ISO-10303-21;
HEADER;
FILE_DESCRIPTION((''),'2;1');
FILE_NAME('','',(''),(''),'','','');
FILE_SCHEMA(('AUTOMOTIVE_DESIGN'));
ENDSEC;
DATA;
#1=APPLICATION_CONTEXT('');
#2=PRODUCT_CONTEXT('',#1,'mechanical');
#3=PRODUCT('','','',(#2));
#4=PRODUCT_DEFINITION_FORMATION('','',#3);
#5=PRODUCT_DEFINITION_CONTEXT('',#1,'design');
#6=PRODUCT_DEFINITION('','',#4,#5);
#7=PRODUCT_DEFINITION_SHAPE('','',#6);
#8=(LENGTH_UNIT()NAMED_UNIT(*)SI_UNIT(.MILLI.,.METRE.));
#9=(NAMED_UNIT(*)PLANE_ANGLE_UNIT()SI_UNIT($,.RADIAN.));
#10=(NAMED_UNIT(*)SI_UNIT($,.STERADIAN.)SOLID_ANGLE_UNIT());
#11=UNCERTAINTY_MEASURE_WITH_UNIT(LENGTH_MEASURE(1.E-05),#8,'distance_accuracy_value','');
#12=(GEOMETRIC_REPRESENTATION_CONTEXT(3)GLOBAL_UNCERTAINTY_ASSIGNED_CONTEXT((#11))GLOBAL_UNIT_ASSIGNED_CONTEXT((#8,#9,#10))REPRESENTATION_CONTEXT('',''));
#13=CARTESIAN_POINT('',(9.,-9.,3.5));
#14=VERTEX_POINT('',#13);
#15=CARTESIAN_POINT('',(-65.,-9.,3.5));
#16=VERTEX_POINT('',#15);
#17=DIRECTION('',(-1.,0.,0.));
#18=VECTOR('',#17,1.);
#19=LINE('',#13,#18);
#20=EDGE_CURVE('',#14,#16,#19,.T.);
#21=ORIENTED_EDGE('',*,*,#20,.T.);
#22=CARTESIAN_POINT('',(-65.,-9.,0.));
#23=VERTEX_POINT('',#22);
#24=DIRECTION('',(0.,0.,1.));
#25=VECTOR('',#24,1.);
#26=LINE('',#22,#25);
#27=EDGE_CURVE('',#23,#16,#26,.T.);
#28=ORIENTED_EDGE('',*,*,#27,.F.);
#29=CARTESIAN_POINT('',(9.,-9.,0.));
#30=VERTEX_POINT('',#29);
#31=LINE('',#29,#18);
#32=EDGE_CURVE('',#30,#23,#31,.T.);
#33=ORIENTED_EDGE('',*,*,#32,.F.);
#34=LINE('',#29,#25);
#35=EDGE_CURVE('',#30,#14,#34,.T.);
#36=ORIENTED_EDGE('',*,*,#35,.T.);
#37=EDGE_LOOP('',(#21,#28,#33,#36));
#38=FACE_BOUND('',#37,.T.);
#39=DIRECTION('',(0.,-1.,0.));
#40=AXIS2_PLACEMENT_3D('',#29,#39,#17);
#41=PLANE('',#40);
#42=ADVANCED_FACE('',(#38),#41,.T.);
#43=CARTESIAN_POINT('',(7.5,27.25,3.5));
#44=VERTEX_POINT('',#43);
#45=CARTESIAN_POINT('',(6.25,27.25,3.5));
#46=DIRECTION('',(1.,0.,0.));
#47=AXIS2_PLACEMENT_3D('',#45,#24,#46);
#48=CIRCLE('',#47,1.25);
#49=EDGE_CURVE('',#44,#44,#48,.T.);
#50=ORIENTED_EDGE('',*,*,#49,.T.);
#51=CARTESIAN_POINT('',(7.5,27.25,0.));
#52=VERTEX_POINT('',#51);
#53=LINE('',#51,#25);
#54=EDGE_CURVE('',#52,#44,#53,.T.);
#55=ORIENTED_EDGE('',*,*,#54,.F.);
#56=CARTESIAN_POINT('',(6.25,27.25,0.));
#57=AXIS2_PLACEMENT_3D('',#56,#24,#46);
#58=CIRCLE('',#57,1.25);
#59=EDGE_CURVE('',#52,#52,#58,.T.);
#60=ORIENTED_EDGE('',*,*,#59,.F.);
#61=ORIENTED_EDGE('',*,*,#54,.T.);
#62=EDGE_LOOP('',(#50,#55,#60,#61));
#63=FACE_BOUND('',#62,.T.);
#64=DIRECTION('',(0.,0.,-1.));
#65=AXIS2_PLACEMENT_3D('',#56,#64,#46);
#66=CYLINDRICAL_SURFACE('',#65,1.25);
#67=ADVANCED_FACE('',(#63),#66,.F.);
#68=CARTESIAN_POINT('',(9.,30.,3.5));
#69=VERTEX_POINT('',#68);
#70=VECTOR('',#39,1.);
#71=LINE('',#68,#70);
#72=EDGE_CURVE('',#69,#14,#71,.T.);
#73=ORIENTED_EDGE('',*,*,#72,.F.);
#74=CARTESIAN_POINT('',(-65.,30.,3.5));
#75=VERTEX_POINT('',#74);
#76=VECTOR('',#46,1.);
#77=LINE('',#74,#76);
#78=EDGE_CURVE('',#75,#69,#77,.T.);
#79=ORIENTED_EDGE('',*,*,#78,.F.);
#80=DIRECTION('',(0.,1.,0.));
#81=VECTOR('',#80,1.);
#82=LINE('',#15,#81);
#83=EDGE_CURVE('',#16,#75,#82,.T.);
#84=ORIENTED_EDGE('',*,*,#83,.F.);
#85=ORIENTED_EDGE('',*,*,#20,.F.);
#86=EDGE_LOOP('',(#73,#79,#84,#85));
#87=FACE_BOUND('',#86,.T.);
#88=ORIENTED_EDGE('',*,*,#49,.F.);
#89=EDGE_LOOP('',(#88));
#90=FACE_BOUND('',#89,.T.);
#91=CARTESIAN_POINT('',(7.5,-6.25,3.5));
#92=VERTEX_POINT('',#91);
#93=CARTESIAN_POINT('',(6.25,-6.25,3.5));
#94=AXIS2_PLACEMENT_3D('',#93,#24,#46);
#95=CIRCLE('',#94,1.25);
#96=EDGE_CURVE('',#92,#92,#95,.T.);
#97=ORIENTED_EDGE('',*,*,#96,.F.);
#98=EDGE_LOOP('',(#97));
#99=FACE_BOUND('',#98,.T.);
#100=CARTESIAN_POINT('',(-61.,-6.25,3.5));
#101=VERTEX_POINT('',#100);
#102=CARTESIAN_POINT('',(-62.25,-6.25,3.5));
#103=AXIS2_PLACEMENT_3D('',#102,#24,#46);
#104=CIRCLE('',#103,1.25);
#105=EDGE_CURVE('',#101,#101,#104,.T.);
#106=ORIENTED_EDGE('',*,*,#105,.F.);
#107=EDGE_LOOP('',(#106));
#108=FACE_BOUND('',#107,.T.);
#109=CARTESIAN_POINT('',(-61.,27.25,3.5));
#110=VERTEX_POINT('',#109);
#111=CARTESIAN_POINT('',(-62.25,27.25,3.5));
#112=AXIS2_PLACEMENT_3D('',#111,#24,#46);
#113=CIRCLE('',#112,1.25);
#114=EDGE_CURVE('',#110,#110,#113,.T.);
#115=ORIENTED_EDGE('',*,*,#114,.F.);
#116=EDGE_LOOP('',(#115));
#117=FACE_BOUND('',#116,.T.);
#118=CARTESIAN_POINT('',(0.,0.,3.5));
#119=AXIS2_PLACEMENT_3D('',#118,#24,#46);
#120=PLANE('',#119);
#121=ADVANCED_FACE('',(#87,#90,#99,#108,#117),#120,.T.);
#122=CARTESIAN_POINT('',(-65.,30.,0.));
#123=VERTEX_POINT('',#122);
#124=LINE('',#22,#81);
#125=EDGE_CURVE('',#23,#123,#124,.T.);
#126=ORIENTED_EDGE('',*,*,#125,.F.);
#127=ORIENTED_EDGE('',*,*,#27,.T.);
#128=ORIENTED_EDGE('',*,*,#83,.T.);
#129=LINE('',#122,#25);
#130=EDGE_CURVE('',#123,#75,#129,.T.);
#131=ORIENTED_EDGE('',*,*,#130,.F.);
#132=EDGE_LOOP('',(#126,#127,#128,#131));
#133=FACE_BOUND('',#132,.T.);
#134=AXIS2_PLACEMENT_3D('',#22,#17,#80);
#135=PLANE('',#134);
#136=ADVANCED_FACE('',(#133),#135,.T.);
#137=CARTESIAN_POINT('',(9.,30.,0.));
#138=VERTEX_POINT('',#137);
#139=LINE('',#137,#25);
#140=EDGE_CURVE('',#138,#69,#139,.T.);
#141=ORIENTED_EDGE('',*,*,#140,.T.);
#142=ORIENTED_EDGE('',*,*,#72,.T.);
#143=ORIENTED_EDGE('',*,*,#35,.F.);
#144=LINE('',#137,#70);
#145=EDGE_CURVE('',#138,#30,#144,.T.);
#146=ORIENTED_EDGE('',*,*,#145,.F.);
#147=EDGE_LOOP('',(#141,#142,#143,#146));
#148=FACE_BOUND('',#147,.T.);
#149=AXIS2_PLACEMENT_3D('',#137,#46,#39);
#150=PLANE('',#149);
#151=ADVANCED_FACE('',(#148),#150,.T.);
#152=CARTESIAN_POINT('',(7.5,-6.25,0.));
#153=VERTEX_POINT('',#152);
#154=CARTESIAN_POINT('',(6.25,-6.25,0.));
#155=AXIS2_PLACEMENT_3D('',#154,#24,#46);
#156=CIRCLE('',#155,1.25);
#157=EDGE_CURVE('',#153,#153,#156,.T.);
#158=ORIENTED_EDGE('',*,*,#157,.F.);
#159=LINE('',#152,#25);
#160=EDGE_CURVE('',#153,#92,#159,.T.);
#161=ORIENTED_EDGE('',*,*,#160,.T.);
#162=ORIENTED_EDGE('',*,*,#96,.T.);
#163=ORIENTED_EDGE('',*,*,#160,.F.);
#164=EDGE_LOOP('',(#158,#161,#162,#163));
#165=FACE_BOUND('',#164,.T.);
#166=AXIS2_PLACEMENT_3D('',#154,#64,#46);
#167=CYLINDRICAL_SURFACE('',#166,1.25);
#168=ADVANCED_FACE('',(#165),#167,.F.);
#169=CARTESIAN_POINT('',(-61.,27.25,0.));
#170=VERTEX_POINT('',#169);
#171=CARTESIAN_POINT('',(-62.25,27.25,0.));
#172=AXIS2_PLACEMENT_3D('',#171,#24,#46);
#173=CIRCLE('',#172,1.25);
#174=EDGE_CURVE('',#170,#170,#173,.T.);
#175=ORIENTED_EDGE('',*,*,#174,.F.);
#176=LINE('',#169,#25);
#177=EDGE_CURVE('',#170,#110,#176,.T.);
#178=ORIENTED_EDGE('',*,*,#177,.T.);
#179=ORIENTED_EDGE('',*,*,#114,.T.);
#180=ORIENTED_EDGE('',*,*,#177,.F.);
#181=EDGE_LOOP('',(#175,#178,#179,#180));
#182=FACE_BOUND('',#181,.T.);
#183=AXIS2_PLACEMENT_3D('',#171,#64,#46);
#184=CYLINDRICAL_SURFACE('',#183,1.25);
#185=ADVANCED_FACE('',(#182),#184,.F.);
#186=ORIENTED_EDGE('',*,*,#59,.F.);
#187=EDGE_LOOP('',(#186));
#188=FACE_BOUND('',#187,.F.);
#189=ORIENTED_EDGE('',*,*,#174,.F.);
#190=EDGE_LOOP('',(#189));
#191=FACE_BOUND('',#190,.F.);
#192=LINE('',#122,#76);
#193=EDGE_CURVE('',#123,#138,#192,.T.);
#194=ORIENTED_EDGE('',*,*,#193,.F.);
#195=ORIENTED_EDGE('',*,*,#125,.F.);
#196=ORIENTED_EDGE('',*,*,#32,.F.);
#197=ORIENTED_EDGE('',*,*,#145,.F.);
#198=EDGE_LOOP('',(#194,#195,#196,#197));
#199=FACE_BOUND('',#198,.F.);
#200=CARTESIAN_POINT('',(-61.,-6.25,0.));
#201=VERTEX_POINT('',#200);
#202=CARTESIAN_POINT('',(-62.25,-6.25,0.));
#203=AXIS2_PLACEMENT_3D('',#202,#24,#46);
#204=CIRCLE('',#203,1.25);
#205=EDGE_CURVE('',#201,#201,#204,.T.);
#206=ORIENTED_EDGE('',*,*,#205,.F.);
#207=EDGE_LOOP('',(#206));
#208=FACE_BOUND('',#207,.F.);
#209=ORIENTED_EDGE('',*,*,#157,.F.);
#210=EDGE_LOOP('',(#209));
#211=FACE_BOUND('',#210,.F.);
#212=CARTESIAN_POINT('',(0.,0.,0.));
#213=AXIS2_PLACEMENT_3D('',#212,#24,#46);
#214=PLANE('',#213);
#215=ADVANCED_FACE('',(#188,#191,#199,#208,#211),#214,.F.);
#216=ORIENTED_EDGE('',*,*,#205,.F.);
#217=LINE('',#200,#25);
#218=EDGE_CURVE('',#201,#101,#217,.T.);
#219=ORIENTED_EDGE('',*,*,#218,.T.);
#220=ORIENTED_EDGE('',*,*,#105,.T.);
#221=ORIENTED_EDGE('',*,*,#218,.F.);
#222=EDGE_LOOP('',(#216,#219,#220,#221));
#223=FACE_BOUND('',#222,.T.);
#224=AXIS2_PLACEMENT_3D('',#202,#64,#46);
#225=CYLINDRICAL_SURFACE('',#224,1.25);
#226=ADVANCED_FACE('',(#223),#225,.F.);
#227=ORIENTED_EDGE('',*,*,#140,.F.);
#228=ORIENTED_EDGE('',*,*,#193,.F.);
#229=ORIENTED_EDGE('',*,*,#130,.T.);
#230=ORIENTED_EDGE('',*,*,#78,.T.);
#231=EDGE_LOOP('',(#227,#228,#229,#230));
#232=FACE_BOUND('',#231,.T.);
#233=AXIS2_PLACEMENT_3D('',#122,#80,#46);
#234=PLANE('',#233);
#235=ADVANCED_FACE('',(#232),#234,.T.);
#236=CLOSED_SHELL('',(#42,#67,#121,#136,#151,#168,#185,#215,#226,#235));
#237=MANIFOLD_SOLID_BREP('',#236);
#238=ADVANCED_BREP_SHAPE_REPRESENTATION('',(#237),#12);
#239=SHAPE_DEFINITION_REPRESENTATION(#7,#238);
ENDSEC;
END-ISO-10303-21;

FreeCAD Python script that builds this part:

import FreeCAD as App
import Part
import Sketcher

V = App.Vector
Q = App.Units.Quantity


def add_polygon(sketch, points):
    """Adds a closed chain of lines whose ends are joined by coincident constraints."""
    first, n = sketch.GeometryCount, len(points)
    for a, b in zip(points, points[1:] + points[:1]):
        sketch.addGeometry(Part.LineSegment(App.Vector(*a, 0), App.Vector(*b, 0)), False)
    for i in range(n):
        sketch.addConstraint(Sketcher.Constraint("Coincident", first + i, 2, first + (i + 1) % n, 1))

doc = App.newDocument("Part")
body = doc.addObject("PartDesign::Body", "Body")

sketch1 = body.newObject("Sketcher::SketchObject", "Sketch")
sketch1.AttachmentSupport = (doc.getObject("XY_Plane"), [""])
sketch1.MapMode = "FlatFace"
add_polygon(sketch1, [(9, 30), (-65, 30), (-65, -9), (9, -9)])
sketch1.addGeometry(Part.Circle(V(-62.25, -6.25, 0), V(0, 0, 1), 1.25), False)
sketch1.addGeometry(Part.Circle(V(6.25, -6.25, 0), V(0, 0, 1), 1.25), False)
sketch1.addGeometry(Part.Circle(V(-62.25, 27.25, 0), V(0, 0, 1), 1.25), False)
sketch1.addGeometry(Part.Circle(V(6.25, 27.25, 0), V(0, 0, 1), 1.25), False)
sketch1.addConstraint(Sketcher.Constraint("Horizontal", 0))
sketch1.addConstraint(Sketcher.Constraint("Vertical", 1))
sketch1.addConstraint(Sketcher.Constraint("Horizontal", 2))
sketch1.addConstraint(Sketcher.Constraint("Vertical", 3))
sketch1.addConstraint(Sketcher.Constraint("Equal", 4, 5))
sketch1.addConstraint(Sketcher.Constraint("Equal", 5, 6))
sketch1.addConstraint(Sketcher.Constraint("Equal", 6, 7))
sketch1.addConstraint(Sketcher.Constraint("Horizontal", 4, 3, 5, 3))
sketch1.addConstraint(Sketcher.Constraint("Horizontal", 6, 3, 7, 3))
sketch1.addConstraint(Sketcher.Constraint("Vertical", 4, 3, 6, 3))
sketch1.addConstraint(Sketcher.Constraint("Vertical", 5, 3, 7, 3))
sketch1.addConstraint(Sketcher.Constraint("Diameter", 4, Q("2.5 mm")))
sketch1.addConstraint(Sketcher.Constraint("DistanceX", 0, 2, 0, 1, Q("74 mm")))
sketch1.addConstraint(Sketcher.Constraint("DistanceY", 1, 2, 1, 1, Q("39 mm")))
sketch1.addConstraint(Sketcher.Constraint("DistanceX", 0, 2, 6, 3, Q("2.75 mm")))
sketch1.addConstraint(Sketcher.Constraint("DistanceY", 6, 3, 0, 2, Q("2.75 mm")))
sketch1.addConstraint(Sketcher.Constraint("DistanceY", 1, 2, 4, 3, Q("2.75 mm")))
sketch1.addConstraint(Sketcher.Constraint("DistanceX", 5, 3, 2, 2, Q("2.75 mm")))
sketch1.addConstraint(Sketcher.Constraint("DistanceX", 0, 2, -1, 1, Q("65 mm")))
sketch1.addConstraint(Sketcher.Constraint("DistanceY", -1, 1, 0, 2, Q("30 mm")))
pad1 = body.newObject("PartDesign::Pad", "Pad")
pad1.Profile = sketch1
pad1.Length = 3.5

doc.recompute()
